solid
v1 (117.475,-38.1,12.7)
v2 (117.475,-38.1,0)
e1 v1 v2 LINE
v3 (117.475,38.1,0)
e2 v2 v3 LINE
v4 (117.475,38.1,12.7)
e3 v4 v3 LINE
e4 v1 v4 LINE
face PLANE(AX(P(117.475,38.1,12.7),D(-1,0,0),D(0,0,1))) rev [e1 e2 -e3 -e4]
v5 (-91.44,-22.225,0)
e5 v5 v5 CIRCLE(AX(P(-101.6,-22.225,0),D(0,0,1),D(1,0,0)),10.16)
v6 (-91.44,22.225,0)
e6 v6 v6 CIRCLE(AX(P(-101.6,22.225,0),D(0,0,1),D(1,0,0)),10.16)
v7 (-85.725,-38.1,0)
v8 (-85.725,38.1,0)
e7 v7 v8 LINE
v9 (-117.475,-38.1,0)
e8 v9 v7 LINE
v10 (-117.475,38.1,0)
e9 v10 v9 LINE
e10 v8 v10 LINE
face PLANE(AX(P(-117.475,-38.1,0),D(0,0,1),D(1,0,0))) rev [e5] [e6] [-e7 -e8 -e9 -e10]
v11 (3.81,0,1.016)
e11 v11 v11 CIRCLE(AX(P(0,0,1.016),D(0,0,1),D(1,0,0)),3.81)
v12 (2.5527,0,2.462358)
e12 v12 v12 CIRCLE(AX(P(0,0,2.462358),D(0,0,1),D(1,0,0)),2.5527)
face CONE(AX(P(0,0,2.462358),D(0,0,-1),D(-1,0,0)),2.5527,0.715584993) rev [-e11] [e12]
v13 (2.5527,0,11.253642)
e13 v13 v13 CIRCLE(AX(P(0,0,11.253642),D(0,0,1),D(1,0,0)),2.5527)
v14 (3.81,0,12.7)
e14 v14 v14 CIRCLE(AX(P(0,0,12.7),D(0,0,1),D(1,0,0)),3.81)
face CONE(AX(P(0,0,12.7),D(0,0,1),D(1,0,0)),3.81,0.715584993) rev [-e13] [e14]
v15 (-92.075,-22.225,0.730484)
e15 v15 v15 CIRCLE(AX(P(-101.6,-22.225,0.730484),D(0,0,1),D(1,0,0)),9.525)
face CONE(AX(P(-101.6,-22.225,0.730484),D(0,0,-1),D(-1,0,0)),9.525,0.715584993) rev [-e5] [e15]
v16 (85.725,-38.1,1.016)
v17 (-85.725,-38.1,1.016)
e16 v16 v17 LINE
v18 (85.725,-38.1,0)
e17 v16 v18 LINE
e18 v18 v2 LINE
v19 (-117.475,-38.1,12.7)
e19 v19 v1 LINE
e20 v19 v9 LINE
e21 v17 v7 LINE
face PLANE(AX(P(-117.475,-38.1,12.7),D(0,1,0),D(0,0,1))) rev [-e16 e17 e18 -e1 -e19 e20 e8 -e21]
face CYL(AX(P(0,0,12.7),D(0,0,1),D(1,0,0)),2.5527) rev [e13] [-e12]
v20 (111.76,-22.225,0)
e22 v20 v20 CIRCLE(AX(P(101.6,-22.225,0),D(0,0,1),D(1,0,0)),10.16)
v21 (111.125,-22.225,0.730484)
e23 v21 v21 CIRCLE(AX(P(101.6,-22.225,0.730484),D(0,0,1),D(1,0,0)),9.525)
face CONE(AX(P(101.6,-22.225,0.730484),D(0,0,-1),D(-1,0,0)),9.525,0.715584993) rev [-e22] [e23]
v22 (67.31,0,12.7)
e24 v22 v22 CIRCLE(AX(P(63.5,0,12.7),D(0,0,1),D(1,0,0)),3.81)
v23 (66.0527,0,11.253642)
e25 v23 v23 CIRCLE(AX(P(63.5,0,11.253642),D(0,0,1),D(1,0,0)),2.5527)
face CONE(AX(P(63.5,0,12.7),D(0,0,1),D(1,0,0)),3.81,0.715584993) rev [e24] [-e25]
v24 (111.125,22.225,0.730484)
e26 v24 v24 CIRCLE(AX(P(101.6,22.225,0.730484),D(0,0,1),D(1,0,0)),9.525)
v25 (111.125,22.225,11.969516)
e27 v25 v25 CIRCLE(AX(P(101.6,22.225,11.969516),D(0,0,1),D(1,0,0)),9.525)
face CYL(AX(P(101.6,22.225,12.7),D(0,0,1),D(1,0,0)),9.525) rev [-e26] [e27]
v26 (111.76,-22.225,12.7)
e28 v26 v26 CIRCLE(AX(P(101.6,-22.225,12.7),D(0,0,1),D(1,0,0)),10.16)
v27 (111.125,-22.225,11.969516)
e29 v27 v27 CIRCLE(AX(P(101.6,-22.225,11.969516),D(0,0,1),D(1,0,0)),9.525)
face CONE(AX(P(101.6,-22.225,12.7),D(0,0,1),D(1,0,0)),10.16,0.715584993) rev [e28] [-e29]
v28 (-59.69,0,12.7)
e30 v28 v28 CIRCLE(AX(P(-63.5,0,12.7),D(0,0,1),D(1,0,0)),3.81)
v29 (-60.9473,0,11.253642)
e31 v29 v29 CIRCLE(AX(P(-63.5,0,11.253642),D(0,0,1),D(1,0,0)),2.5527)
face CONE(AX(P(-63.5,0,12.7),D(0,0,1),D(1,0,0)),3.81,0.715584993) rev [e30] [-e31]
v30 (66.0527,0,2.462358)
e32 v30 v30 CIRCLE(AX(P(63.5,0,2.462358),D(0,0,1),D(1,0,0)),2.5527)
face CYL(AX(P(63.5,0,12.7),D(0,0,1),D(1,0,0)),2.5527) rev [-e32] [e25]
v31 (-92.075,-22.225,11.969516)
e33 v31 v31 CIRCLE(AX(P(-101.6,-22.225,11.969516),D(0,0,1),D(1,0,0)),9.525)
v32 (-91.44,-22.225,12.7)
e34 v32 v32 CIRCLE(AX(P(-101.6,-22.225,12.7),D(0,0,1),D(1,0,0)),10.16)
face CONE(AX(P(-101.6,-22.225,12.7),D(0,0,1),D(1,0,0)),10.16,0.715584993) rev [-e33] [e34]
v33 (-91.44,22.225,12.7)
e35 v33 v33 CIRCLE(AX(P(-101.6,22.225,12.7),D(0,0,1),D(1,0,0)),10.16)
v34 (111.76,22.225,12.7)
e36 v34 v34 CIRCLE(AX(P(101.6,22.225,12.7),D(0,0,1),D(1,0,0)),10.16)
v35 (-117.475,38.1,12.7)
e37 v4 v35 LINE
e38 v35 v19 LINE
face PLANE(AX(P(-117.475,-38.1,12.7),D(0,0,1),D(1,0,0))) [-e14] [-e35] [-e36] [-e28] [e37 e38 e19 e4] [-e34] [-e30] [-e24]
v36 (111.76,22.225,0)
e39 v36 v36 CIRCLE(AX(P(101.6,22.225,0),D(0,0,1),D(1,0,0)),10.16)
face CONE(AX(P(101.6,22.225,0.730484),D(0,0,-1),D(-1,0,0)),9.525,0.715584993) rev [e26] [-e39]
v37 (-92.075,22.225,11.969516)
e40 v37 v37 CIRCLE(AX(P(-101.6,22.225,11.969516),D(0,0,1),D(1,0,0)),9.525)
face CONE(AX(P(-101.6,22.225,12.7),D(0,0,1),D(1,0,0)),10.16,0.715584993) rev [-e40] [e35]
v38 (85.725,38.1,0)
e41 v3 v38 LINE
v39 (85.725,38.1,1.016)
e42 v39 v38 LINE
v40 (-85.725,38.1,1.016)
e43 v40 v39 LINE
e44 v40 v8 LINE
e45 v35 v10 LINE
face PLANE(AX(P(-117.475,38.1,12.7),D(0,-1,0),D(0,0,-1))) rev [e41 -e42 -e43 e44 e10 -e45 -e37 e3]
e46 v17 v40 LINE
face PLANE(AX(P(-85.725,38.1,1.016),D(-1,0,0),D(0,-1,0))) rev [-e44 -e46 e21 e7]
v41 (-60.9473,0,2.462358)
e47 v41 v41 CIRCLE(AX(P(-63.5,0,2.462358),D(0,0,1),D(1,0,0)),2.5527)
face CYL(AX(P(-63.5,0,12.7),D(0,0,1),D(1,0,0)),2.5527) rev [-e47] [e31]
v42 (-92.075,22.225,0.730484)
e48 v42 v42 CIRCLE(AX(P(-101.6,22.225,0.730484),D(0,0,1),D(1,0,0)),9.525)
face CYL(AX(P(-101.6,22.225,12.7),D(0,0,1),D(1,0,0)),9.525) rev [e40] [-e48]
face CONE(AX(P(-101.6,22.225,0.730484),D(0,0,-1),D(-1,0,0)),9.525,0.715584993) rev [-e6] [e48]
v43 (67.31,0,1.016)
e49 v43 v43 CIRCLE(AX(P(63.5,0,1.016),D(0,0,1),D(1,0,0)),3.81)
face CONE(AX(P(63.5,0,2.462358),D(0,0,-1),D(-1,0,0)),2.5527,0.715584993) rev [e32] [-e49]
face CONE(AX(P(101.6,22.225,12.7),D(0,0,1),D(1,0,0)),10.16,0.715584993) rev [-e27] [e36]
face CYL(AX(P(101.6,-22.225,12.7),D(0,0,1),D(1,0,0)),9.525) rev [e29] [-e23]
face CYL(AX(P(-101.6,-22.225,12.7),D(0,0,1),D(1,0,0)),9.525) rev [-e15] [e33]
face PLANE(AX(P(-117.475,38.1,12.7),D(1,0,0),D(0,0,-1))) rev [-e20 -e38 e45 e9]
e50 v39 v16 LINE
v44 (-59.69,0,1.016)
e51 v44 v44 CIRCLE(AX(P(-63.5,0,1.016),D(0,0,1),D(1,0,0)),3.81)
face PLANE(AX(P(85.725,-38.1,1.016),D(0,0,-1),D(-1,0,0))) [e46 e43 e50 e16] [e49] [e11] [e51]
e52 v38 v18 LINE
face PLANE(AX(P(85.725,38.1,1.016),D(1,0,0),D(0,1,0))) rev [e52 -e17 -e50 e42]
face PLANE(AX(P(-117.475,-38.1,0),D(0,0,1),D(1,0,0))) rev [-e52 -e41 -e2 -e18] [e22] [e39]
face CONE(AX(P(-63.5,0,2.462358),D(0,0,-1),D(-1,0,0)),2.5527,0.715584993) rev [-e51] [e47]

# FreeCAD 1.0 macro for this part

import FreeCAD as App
import Part
import Sketcher
from FreeCAD import Vector
Q = App.Units.Quantity

doc = App.newDocument("Part")
body = doc.addObject("PartDesign::Body", "Body")

# Sketch on XY plane
sketch1 = body.newObject("Sketcher::SketchObject", "Sketch")
sketch1.AttachmentSupport = (doc.getObject("XY_Plane"), [""])
sketch1.MapMode = "FlatFace"
sketch1.addGeometry([
    Part.LineSegment(Vector(-117.475, 38.1, 0), Vector(-117.475, -38.1, 0)),
    Part.LineSegment(Vector(-117.475, -38.1, 0), Vector(117.475, -38.1, 0)),
    Part.LineSegment(Vector(117.475, -38.1, 0), Vector(117.475, 38.1, 0)),
    Part.LineSegment(Vector(117.475, 38.1, 0), Vector(-117.475, 38.1, 0)),
], False)
sketch1.addConstraint([
    Sketcher.Constraint("Coincident", 0, 2, 1, 1),
    Sketcher.Constraint("Coincident", 1, 2, 2, 1),
    Sketcher.Constraint("Coincident", 2, 2, 3, 1),
    Sketcher.Constraint("Coincident", 3, 2, 0, 1),
    Sketcher.Constraint("Vertical", 0),
    Sketcher.Constraint("Horizontal", 1),
    Sketcher.Constraint("Vertical", 2),
    Sketcher.Constraint("Horizontal", 3),
    Sketcher.Constraint("Symmetric", 0, 2, 2, 2, -1, 1),
    Sketcher.Constraint("DistanceY", 0, 2, 0, 1, Q("3 in")),
    Sketcher.Constraint("DistanceX", 1, 1, 1, 2, Q("9.25 in")),
])
pad1 = body.newObject("PartDesign::Pad", "Pad")
pad1.Profile = sketch1
pad1.Length = Q("0.5 in")

# Sketch on YZ plane
sketch2 = body.newObject("Sketcher::SketchObject", "Sketch001")
sketch2.AttachmentSupport = (doc.getObject("YZ_Plane"), [""])
sketch2.MapMode = "FlatFace"
sketch2.AttachmentOffset = App.Placement(Vector(0, 0, -4 * 25.4), App.Rotation())
sketch2.addGeometry([
    Part.LineSegment(Vector(22.225, 0, 0), Vector(22.225, 12.7, 0)),  # 0
    Part.LineSegment(Vector(22.225, 12.7, 0), Vector(12.065, 12.7, 0)),  # 1
    Part.LineSegment(Vector(12.065, 12.7, 0), Vector(12.7, 11.969516, 0)),  # 2
    Part.LineSegment(Vector(12.7, 11.969516, 0), Vector(12.7, 0.730484, 0)),  # 3
    Part.LineSegment(Vector(12.7, 0.730484, 0), Vector(12.065, 0, 0)),  # 4
    Part.LineSegment(Vector(12.065, 0, 0), Vector(22.225, 0, 0)),  # 5
], False)
sketch2.addGeometry(Part.LineSegment(Vector(22.225, 12.7, 0), Vector(22.225, 0, 0)), True)  # axis
sketch2.addConstraint([
    Sketcher.Constraint("Coincident", 0, 2, 1, 1),
    Sketcher.Constraint("Coincident", 1, 2, 2, 1),
    Sketcher.Constraint("Coincident", 2, 2, 3, 1),
    Sketcher.Constraint("Coincident", 3, 2, 4, 1),
    Sketcher.Constraint("Coincident", 4, 2, 5, 1),
    Sketcher.Constraint("Coincident", 5, 2, 0, 1),
    Sketcher.Constraint("Vertical", 0),
    Sketcher.Constraint("Horizontal", 1),
    Sketcher.Constraint("Vertical", 3),
    Sketcher.Constraint("Horizontal", 5),
    Sketcher.Constraint("Vertical", 6),
    Sketcher.Constraint("Coincident", 6, 1, 0, 2),
    Sketcher.Constraint("PointOnObject", 4, 2, -1),
    Sketcher.Constraint("PointOnObject", 6, 2, -1),
    Sketcher.Constraint("Vertical", 1, 2, 4, 2),
    Sketcher.Constraint("Equal", 2, 4),
    Sketcher.Constraint("DistanceX", 1, 2, 1, 1, Q("0.4 in")),
    Sketcher.Constraint("DistanceY", 0, 1, 0, 2, Q("0.5 in")),
    Sketcher.Constraint("Angle", 2, Q("-49 deg")),
    Sketcher.Constraint("DistanceX", -1, 1, 2, 2, Q("0.5 in")),
    Sketcher.Constraint("DistanceX", -1, 1, 0, 2, Q("0.875 in")),
])
groove = body.newObject("PartDesign::Groove", "Groove")
groove.Profile = sketch2
groove.ReferenceAxis = (sketch2, ["Axis0"])
groove.Angle = 360
doc.recompute()

linearpattern = body.newObject("PartDesign::LinearPattern", "LinearPattern")
linearpattern.Originals = [groove]
linearpattern.Direction = (doc.getObject("Y_Axis"), [""])
linearpattern.Mode = "offset"
linearpattern.Offset = Q("1.75 in")
linearpattern.Occurrences = 2
linearpattern.Reversed = True
body.Tip = linearpattern
doc.recompute()

linearpattern2 = body.newObject("PartDesign::LinearPattern", "LinearPattern001")
linearpattern2.Originals = [groove]
linearpattern2.Direction = (doc.getObject("X_Axis"), [""])
linearpattern2.Mode = "offset"
linearpattern2.Offset = Q("8 in")
linearpattern2.Occurrences = 2
body.Tip = linearpattern2
doc.recompute()

datumline = body.newObject("PartDesign::Line", "DatumLine")
datumline.Placement = App.Placement(Vector(0, 0, 0), App.Rotation(Vector(0, 0, 1), Vector(0.976900017, -0.213696879, 0)))
linearpattern3 = body.newObject("PartDesign::LinearPattern", "LinearPattern002")
linearpattern3.Originals = [groove]
linearpattern3.Direction = (datumline, [""])
linearpattern3.Mode = "offset"
linearpattern3.Offset = 208.00491
linearpattern3.Occurrences = 2
body.Tip = linearpattern3

# Sketch on XY plane
sketch3 = body.newObject("Sketcher::SketchObject", "Sketch002")
sketch3.AttachmentSupport = (doc.getObject("XY_Plane"), [""])
sketch3.MapMode = "FlatFace"
sketch3.addGeometry([
    Part.LineSegment(Vector(85.725, 38.1, 0), Vector(85.725, -38.1, 0)),
    Part.LineSegment(Vector(85.725, -38.1, 0), Vector(-85.725, -38.1, 0)),
    Part.LineSegment(Vector(-85.725, -38.1, 0), Vector(-85.725, 38.1, 0)),
    Part.LineSegment(Vector(-85.725, 38.1, 0), Vector(85.725, 38.1, 0)),
], False)
sketch3.addConstraint([
    Sketcher.Constraint("Coincident", 0, 2, 1, 1),
    Sketcher.Constraint("Coincident", 1, 2, 2, 1),
    Sketcher.Constraint("Coincident", 2, 2, 3, 1),
    Sketcher.Constraint("Coincident", 3, 2, 0, 1),
    Sketcher.Constraint("Vertical", 0),
    Sketcher.Constraint("Horizontal", 1),
    Sketcher.Constraint("Vertical", 2),
    Sketcher.Constraint("Horizontal", 3),
    Sketcher.Constraint("Symmetric", 0, 2, 2, 2, -1, 1),
    Sketcher.Constraint("DistanceY", 0, 2, 0, 1, Q("3 in")),
    Sketcher.Constraint("DistanceX", 1, 2, 1, 1, Q("6.75 in")),
])
pocket1 = body.newObject("PartDesign::Pocket", "Pocket")
pocket1.Profile = sketch3
pocket1.Length = Q("0.04 in")
pocket1.Reversed = True

# Sketch on YZ plane
sketch4 = body.newObject("Sketcher::SketchObject", "Sketch003")
sketch4.AttachmentSupport = (doc.getObject("YZ_Plane"), [""])
sketch4.MapMode = "FlatFace"
sketch4.AttachmentOffset = App.Placement(Vector(0, 0, -2.5 * 25.4), App.Rotation())
sketch4.addGeometry([
    Part.LineSegment(Vector(0, 1.016, 0), Vector(0, 12.7, 0)),  # 0
    Part.LineSegment(Vector(0, 12.7, 0), Vector(-3.81, 12.7, 0)),  # 1
    Part.LineSegment(Vector(-3.81, 12.7, 0), Vector(-2.5527, 11.253642, 0)),  # 2
    Part.LineSegment(Vector(-2.5527, 11.253642, 0), Vector(-2.5527, 2.462358, 0)),  # 3
    Part.LineSegment(Vector(-2.5527, 2.462358, 0), Vector(-3.81, 1.016, 0)),  # 4
    Part.LineSegment(Vector(-3.81, 1.016, 0), Vector(0, 1.016, 0)),  # 5
], False)
sketch4.addConstraint([
    Sketcher.Constraint("Coincident", 0, 2, 1, 1),
    Sketcher.Constraint("Coincident", 1, 2, 2, 1),
    Sketcher.Constraint("Coincident", 2, 2, 3, 1),
    Sketcher.Constraint("Coincident", 3, 2, 4, 1),
    Sketcher.Constraint("Coincident", 4, 2, 5, 1),
    Sketcher.Constraint("Coincident", 5, 2, 0, 1),
    Sketcher.Constraint("Vertical", 0),
    Sketcher.Constraint("Horizontal", 1),
    Sketcher.Constraint("Vertical", 3),
    Sketcher.Constraint("Horizontal", 5),
    Sketcher.Constraint("PointOnObject", 0, 2, -2),
    Sketcher.Constraint("Vertical", 1, 2, 4, 2),
    Sketcher.Constraint("Equal", 2, 4),
    Sketcher.Constraint("Angle", 2, Q("-49 deg")),
    Sketcher.Constraint("DistanceX", 1, 2, 1, 1, Q("0.15 in")),
    Sketcher.Constraint("DistanceY", 0, 1, 0, 2, Q("0.46 in")),
    Sketcher.Constraint("DistanceY", -1, 1, 0, 2, Q("0.5 in")),
    Sketcher.Constraint("DistanceX", 2, 2, -1, 1, Q("0.1005 in")),
])
groove2 = body.newObject("PartDesign::Groove", "Groove001")
groove2.Profile = sketch4
groove2.ReferenceAxis = (sketch4, ["V_Axis"])
groove2.Angle = 360
doc.recompute()

linearpattern4 = body.newObject("PartDesign::LinearPattern", "LinearPattern003")
linearpattern4.Originals = [groove2]
linearpattern4.Direction = (doc.getObject("X_Axis"), [""])
linearpattern4.Mode = "offset"
linearpattern4.Offset = Q("2.5 in")
linearpattern4.Occurrences = 2
body.Tip = linearpattern4
doc.recompute()

linearpattern5 = body.newObject("PartDesign::LinearPattern", "LinearPattern004")
linearpattern5.Originals = [groove2]
linearpattern5.Direction = (doc.getObject("X_Axis"), [""])
linearpattern5.Mode = "offset"
linearpattern5.Offset = Q("5 in")
linearpattern5.Occurrences = 2
body.Tip = linearpattern5

doc.recompute()
